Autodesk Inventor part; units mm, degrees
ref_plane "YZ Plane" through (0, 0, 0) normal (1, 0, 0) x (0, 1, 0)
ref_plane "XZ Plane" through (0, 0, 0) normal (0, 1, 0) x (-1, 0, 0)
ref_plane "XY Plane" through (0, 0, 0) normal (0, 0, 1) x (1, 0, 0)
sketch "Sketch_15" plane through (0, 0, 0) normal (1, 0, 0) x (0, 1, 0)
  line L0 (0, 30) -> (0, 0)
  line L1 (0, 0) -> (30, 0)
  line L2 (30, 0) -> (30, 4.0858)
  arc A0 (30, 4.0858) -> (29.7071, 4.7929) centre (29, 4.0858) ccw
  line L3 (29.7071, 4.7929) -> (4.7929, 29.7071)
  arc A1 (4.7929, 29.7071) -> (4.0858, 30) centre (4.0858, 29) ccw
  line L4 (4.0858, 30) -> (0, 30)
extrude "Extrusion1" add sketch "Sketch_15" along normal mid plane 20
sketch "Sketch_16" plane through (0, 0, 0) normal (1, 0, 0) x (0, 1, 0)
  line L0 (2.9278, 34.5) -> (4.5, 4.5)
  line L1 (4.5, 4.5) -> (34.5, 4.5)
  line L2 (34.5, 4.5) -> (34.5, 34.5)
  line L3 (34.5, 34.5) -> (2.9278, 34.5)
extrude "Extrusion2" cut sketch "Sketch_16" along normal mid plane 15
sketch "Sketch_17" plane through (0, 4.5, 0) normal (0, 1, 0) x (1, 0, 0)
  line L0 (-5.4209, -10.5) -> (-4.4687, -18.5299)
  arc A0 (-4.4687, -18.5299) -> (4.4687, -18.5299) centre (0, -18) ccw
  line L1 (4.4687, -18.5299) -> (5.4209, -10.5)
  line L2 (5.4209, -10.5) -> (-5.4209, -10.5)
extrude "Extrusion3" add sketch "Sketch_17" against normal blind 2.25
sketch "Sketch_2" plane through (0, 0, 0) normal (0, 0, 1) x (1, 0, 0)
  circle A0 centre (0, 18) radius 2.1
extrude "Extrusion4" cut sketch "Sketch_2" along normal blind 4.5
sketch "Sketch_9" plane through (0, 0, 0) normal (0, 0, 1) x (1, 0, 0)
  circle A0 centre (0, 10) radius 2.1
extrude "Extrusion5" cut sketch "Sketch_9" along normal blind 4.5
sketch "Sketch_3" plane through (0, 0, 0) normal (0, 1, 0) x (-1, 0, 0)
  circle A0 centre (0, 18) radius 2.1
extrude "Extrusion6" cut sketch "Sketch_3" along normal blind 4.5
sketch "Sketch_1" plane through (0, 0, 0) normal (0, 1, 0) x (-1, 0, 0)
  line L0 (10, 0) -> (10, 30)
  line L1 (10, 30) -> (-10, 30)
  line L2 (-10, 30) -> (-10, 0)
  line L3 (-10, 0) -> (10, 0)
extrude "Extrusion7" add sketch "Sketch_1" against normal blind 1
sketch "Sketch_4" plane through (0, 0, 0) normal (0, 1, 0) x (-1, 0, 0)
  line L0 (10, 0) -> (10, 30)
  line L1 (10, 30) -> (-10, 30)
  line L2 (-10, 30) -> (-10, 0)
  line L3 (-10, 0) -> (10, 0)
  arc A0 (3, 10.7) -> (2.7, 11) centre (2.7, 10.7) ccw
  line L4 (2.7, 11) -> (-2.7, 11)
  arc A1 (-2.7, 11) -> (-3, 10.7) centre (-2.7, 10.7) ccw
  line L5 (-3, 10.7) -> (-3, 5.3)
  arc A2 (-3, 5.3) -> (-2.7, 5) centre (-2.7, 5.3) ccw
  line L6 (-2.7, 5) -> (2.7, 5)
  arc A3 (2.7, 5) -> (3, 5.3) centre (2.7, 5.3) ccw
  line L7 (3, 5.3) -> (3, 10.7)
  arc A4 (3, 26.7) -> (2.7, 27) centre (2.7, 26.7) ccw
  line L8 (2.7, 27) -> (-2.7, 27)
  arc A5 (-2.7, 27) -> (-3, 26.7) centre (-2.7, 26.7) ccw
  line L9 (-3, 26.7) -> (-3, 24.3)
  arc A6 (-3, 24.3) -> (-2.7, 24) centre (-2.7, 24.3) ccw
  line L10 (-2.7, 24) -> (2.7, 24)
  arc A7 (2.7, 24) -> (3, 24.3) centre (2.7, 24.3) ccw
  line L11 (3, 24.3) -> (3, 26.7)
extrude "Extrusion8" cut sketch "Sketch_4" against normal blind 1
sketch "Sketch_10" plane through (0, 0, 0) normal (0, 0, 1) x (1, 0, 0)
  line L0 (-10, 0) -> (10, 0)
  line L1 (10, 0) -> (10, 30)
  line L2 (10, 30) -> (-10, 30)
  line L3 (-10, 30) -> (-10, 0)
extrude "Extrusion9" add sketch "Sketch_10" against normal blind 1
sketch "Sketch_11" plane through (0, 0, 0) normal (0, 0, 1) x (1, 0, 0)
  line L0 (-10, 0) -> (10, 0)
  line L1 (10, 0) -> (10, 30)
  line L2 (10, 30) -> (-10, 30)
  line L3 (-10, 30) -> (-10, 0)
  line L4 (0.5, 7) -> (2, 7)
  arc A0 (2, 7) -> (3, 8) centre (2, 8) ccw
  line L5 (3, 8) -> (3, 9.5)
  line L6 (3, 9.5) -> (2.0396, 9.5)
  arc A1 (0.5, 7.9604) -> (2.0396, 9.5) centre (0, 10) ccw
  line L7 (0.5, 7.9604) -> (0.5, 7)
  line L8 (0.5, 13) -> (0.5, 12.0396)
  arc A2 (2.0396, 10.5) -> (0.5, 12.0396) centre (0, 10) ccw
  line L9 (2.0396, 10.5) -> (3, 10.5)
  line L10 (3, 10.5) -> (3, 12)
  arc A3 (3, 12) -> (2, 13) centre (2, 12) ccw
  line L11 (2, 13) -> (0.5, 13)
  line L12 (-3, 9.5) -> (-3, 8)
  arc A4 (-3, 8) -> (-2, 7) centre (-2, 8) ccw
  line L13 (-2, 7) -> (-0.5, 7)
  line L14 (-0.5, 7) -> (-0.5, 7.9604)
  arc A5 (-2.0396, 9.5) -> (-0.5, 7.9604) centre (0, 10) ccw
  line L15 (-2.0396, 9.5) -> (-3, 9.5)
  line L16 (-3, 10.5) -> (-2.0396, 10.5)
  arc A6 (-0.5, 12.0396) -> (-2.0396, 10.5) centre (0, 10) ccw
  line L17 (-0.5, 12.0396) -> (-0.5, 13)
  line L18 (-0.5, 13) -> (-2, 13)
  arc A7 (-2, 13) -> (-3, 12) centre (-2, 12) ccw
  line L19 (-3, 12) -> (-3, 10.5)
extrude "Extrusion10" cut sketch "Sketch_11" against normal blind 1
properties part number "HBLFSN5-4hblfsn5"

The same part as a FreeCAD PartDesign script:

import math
import FreeCAD as App
import Part
import Sketcher

V = App.Vector
Q = App.Units.Quantity

doc = App.newDocument("Part")
body = doc.addObject("PartDesign::Body", "Body")

sketch1 = doc.addObject("Sketcher::SketchObject", "Sketch")
body.addObject(sketch1)
sketch1.AttachmentSupport = (doc.YZ_Plane, [""])
sketch1.MapMode = "FlatFace"
sketch1.addGeometry([
    Part.LineSegment(V(4.0858, 30, 0), V(0, 30, 0)),
    Part.LineSegment(V(0, 30, 0), V(0, 0, 0)),
    Part.LineSegment(V(0, 0, 0), V(30, 0, 0)),
    Part.LineSegment(V(30, 0, 0), V(30, 4.0858, 0)),
    Part.ArcOfCircle(Part.Circle(V(29, 4.0858, 0), V(0, 0, 1), 1), math.radians(0), math.radians(45)),
    Part.LineSegment(V(29.7071, 4.7929, 0), V(4.7929, 29.7071, 0)),
    Part.ArcOfCircle(Part.Circle(V(4.0858, 29, 0), V(0, 0, 1), 0.99999), math.radians(45), math.radians(90)),
], False)
sketch1.addConstraint([
    Sketcher.Constraint("Coincident", 0, 2, 1, 1),
    Sketcher.Constraint("Coincident", 1, 2, 2, 1),
    Sketcher.Constraint("Coincident", 2, 2, 3, 1),
    Sketcher.Constraint("Tangent", 3, 2, 4, 1),
    Sketcher.Constraint("Tangent", 4, 2, 5, 1),
    Sketcher.Constraint("Tangent", 5, 2, 6, 1),
    Sketcher.Constraint("Tangent", 6, 2, 0, 1),
    Sketcher.Constraint("Horizontal", 0),
    Sketcher.Constraint("Vertical", 1),
    Sketcher.Constraint("Horizontal", 2),
    Sketcher.Constraint("Vertical", 3),
    Sketcher.Constraint("Coincident", 1, 2, -1, 1),
    Sketcher.Constraint("Equal", 4, 6),
    Sketcher.Constraint("Equal", 2, 1),
    Sketcher.Constraint("Equal", 0, 3),
    Sketcher.Constraint("Radius", 4, Q("1 mm")),
    Sketcher.Constraint("DistanceX", 2, 1, 2, 2, Q("30 mm")),
    Sketcher.Constraint("Distance", 5, Q("35.234 mm")),
])
pad1 = doc.addObject("PartDesign::Pad", "Pad")
body.addObject(pad1)
pad1.Profile = sketch1
pad1.Length = 20
pad1.Midplane = True

sketch2 = doc.addObject("Sketcher::SketchObject", "Sketch001")
body.addObject(sketch2)
sketch2.AttachmentSupport = (doc.YZ_Plane, [""])
sketch2.MapMode = "FlatFace"
sketch2.addGeometry([
    Part.LineSegment(V(34.5, 34.5, 0), V(2.9278, 34.5, 0)),
    Part.LineSegment(V(2.9278, 34.5, 0), V(4.5, 4.5, 0)),
    Part.LineSegment(V(4.5, 4.5, 0), V(34.5, 4.5, 0)),
    Part.LineSegment(V(34.5, 4.5, 0), V(34.5, 34.5, 0)),
], False)
sketch2.addConstraint([
    Sketcher.Constraint("Coincident", 0, 2, 1, 1),
    Sketcher.Constraint("Coincident", 1, 2, 2, 1),
    Sketcher.Constraint("Coincident", 2, 2, 3, 1),
    Sketcher.Constraint("Coincident", 3, 2, 0, 1),
    Sketcher.Constraint("Horizontal", 0),
    Sketcher.Constraint("Horizontal", 2),
    Sketcher.Constraint("Vertical", 3),
    Sketcher.Constraint("Equal", 2, 3),
    Sketcher.Constraint("DistanceX", 2, 1, 2, 2, Q("30 mm")),
    Sketcher.Constraint("Angle", 1, Q("-87 deg")),
    Sketcher.Constraint("DistanceY", -1, 1, 0, 2, Q("34.5 mm")),
    Sketcher.Constraint("DistanceX", -1, 1, 1, 2, Q("4.5 mm")),
])
pocket1 = doc.addObject("PartDesign::Pocket", "Pocket")
body.addObject(pocket1)
pocket1.Profile = sketch2
pocket1.Length = 15
pocket1.Midplane = True

sketch3 = doc.addObject("Sketcher::SketchObject", "Sketch002")
body.addObject(sketch3)
sketch3.AttachmentSupport = (doc.XZ_Plane, [""])
sketch3.MapMode = "FlatFace"
sketch3.AttachmentOffset = App.Placement(V(0, 0, -4.5), App.Rotation())
sketch3.addGeometry([
    Part.LineSegment(V(5.4209, 10.5, 0), V(-5.4209, 10.5, 0)),
    Part.LineSegment(V(-5.4209, 10.5, 0), V(-4.4687, 18.5299, 0)),
    Part.ArcOfCircle(Part.Circle(V(0, 18, 0), V(0, 0, 1), 4.500008), math.radians(6.762575), math.radians(173.237425)),
    Part.LineSegment(V(4.4687, 18.5299, 0), V(5.4209, 10.5, 0)),
], False)
sketch3.addConstraint([
    Sketcher.Constraint("Coincident", 0, 2, 1, 1),
    Sketcher.Constraint("Tangent", 1, 2, 2, 2),
    Sketcher.Constraint("Tangent", 2, 1, 3, 1),
    Sketcher.Constraint("Coincident", 3, 2, 0, 1),
    Sketcher.Constraint("Horizontal", 0),
    Sketcher.Constraint("Symmetric", 1, 2, 2, 1, -2),
    Sketcher.Constraint("Radius", 2, Q("4.5 mm")),
    Sketcher.Constraint("DistanceY", -1, 1, 2, 3, Q("18 mm")),
    Sketcher.Constraint("DistanceY", -1, 1, 0, 2, Q("10.5 mm")),
    Sketcher.Constraint("DistanceY", -1, 1, 1, 2, Q("18.53 mm")),
])
pad2 = doc.addObject("PartDesign::Pad", "Pad001")
body.addObject(pad2)
pad2.Profile = sketch3
pad2.Length = 2.25

sketch4 = doc.addObject("Sketcher::SketchObject", "Sketch003")
body.addObject(sketch4)
sketch4.AttachmentSupport = (doc.XY_Plane, [""])
sketch4.MapMode = "FlatFace"
sketch4.addGeometry(Part.Circle(V(0, 18, 0), V(0, 0, 1), 2.1), False)
sketch4.addConstraint([
    Sketcher.Constraint("PointOnObject", 0, 3, -2),
    Sketcher.Constraint("Diameter", 0, Q("4.2 mm")),
    Sketcher.Constraint("DistanceY", -1, 1, 0, 3, Q("18 mm")),
])
pocket2 = doc.addObject("PartDesign::Pocket", "Pocket001")
body.addObject(pocket2)
pocket2.Profile = sketch4
pocket2.Length = 4.5
pocket2.Reversed = True

sketch5 = doc.addObject("Sketcher::SketchObject", "Sketch004")
body.addObject(sketch5)
sketch5.AttachmentSupport = (doc.XY_Plane, [""])
sketch5.MapMode = "FlatFace"
sketch5.addGeometry(Part.Circle(V(0, 10, 0), V(0, 0, 1), 2.1), False)
sketch5.addConstraint([
    Sketcher.Constraint("PointOnObject", 0, 3, -2),
    Sketcher.Constraint("Diameter", 0, Q("4.2 mm")),
    Sketcher.Constraint("DistanceY", -1, 1, 0, 3, Q("10 mm")),
])
pocket3 = doc.addObject("PartDesign::Pocket", "Pocket002")
body.addObject(pocket3)
pocket3.Profile = sketch5
pocket3.Length = 4.5
pocket3.Reversed = True

sketch6 = doc.addObject("Sketcher::SketchObject", "Sketch005")
body.addObject(sketch6)
sketch6.AttachmentSupport = (doc.XZ_Plane, [""])
sketch6.MapMode = "FlatFace"
sketch6.addGeometry(Part.Circle(V(0, 18, 0), V(0, 0, 1), 2.1), False)
sketch6.addConstraint([
    Sketcher.Constraint("PointOnObject", 0, 3, -2),
    Sketcher.Constraint("Diameter", 0, Q("4.2 mm")),
    Sketcher.Constraint("DistanceY", -1, 1, 0, 3, Q("18 mm")),
])
pocket4 = doc.addObject("PartDesign::Pocket", "Pocket003")
body.addObject(pocket4)
pocket4.Profile = sketch6
pocket4.Length = 4.5

sketch7 = doc.addObject("Sketcher::SketchObject", "Sketch006")
body.addObject(sketch7)
sketch7.AttachmentSupport = (doc.XZ_Plane, [""])
sketch7.MapMode = "FlatFace"
sketch7.addGeometry([
    Part.LineSegment(V(10, 0, 0), V(-10, 0, 0)),
    Part.LineSegment(V(-10, 0, 0), V(-10, 30, 0)),
    Part.LineSegment(V(-10, 30, 0), V(10, 30, 0)),
    Part.LineSegment(V(10, 30, 0), V(10, 0, 0)),
], False)
sketch7.addConstraint([
    Sketcher.Constraint("Coincident", 0, 2, 1, 1),
    Sketcher.Constraint("Coincident", 1, 2, 2, 1),
    Sketcher.Constraint("Coincident", 2, 2, 3, 1),
    Sketcher.Constraint("Coincident", 3, 2, 0, 1),
    Sketcher.Constraint("Horizontal", 0),
    Sketcher.Constraint("Vertical", 1),
    Sketcher.Constraint("Horizontal", 2),
    Sketcher.Constraint("Vertical", 3),
    Sketcher.Constraint("Symmetric", 0, 2, 3, 2, -1, 1),
    Sketcher.Constraint("DistanceX", 0, 2, 0, 1, Q("20 mm")),
    Sketcher.Constraint("DistanceY", 1, 1, 1, 2, Q("30 mm")),
])
pad3 = doc.addObject("PartDesign::Pad", "Pad002")
body.addObject(pad3)
pad3.Profile = sketch7
pad3.Length = 1

sketch8 = doc.addObject("Sketcher::SketchObject", "Sketch007")
body.addObject(sketch8)
sketch8.AttachmentSupport = (doc.XZ_Plane, [""])
sketch8.MapMode = "FlatFace"
sketch8.addGeometry([
    Part.LineSegment(V(10, 0, 0), V(-10, 0, 0)),
    Part.LineSegment(V(-10, 0, 0), V(-10, 30, 0)),
    Part.LineSegment(V(-10, 30, 0), V(10, 30, 0)),
    Part.LineSegment(V(10, 30, 0), V(10, 0, 0)),
    Part.ArcOfCircle(Part.Circle(V(-2.7, 10.7, 0), V(0, 0, 1), 0.3), math.radians(90), math.radians(180)),
    Part.LineSegment(V(-3, 10.7, 0), V(-3, 5.3, 0)),
    Part.ArcOfCircle(Part.Circle(V(-2.7, 5.3, 0), V(0, 0, 1), 0.3), math.radians(180), math.radians(270)),
    Part.LineSegment(V(-2.7, 5, 0), V(2.7, 5, 0)),
    Part.ArcOfCircle(Part.Circle(V(2.7, 5.3, 0), V(0, 0, 1), 0.3), math.radians(-90), math.radians(0)),
    Part.LineSegment(V(3, 5.3, 0), V(3, 10.7, 0)),
    Part.ArcOfCircle(Part.Circle(V(2.7, 10.7, 0), V(0, 0, 1), 0.3), math.radians(0), math.radians(90)),
    Part.LineSegment(V(2.7, 11, 0), V(-2.7, 11, 0)),
    Part.ArcOfCircle(Part.Circle(V(-2.7, 26.7, 0), V(0, 0, 1), 0.3), math.radians(90), math.radians(180)),
    Part.LineSegment(V(-3, 26.7, 0), V(-3, 24.3, 0)),
    Part.ArcOfCircle(Part.Circle(V(-2.7, 24.3, 0), V(0, 0, 1), 0.3), math.radians(180), math.radians(270)),
    Part.LineSegment(V(-2.7, 24, 0), V(2.7, 24, 0)),
    Part.ArcOfCircle(Part.Circle(V(2.7, 24.3, 0), V(0, 0, 1), 0.3), math.radians(-90), math.radians(0)),
    Part.LineSegment(V(3, 24.3, 0), V(3, 26.7, 0)),
    Part.ArcOfCircle(Part.Circle(V(2.7, 26.7, 0), V(0, 0, 1), 0.3), math.radians(0), math.radians(90)),
    Part.LineSegment(V(2.7, 27, 0), V(-2.7, 27, 0)),
], False)
sketch8.addConstraint([
    Sketcher.Constraint("Coincident", 0, 2, 1, 1),
    Sketcher.Constraint("Coincident", 1, 2, 2, 1),
    Sketcher.Constraint("Coincident", 2, 2, 3, 1),
    Sketcher.Constraint("Coincident", 3, 2, 0, 1),
    Sketcher.Constraint("Tangent", 4, 2, 5, 1),
    Sketcher.Constraint("Tangent", 5, 2, 6, 1),
    Sketcher.Constraint("Tangent", 6, 2, 7, 1),
    Sketcher.Constraint("Tangent", 7, 2, 8, 1),
    Sketcher.Constraint("Tangent", 8, 2, 9, 1),
    Sketcher.Constraint("Tangent", 9, 2, 10, 1),
    Sketcher.Constraint("Tangent", 10, 2, 11, 1),
    Sketcher.Constraint("Tangent", 11, 2, 4, 1),
    Sketcher.Constraint("Tangent", 12, 2, 13, 1),
    Sketcher.Constraint("Tangent", 13, 2, 14, 1),
    Sketcher.Constraint("Tangent", 14, 2, 15, 1),
    Sketcher.Constraint("Tangent", 15, 2, 16, 1),
    Sketcher.Constraint("Tangent", 16, 2, 17, 1),
    Sketcher.Constraint("Tangent", 17, 2, 18, 1),
    Sketcher.Constraint("Tangent", 18, 2, 19, 1),
    Sketcher.Constraint("Tangent", 19, 2, 12, 1),
    Sketcher.Constraint("Horizontal", 0),
    Sketcher.Constraint("Vertical", 1),
    Sketcher.Constraint("Horizontal", 2),
    Sketcher.Constraint("Vertical", 3),
    Sketcher.Constraint("Vertical", 5),
    Sketcher.Constraint("Horizontal", 7),
    Sketcher.Constraint("Vertical", 9),
    Sketcher.Constraint("Horizontal", 11),
    Sketcher.Constraint("Vertical", 13),
    Sketcher.Constraint("Horizontal", 15),
    Sketcher.Constraint("Vertical", 17),
    Sketcher.Constraint("Horizontal", 19),
    Sketcher.Constraint("Equal", 4, 6),
    Sketcher.Constraint("Equal", 6, 8),
    Sketcher.Constraint("Equal", 8, 10),
    Sketcher.Constraint("Equal", 10, 12),
    Sketcher.Constraint("Equal", 12, 14),
    Sketcher.Constraint("Equal", 14, 16),
    Sketcher.Constraint("Equal", 16, 18),
    Sketcher.Constraint("Symmetric", 0, 2, 3, 2, -1, 1),
    Sketcher.Constraint("Vertical", 6, 3, 12, 3),
    Sketcher.Constraint("Vertical", 10, 3, 16, 3),
    Sketcher.Constraint("Equal", 19, 5),
    Sketcher.Constraint("Radius", 4, Q("0.3 mm")),
    Sketcher.Constraint("DistanceX", 0, 2, 0, 1, Q("20 mm")),
    Sketcher.Constraint("DistanceY", 1, 1, 1, 2, Q("30 mm")),
    Sketcher.Constraint("DistanceX", 7, 1, 7, 2, Q("5.4 mm")),
    Sketcher.Constraint("DistanceY", 13, 2, 13, 1, Q("2.4 mm")),
    Sketcher.Constraint("DistanceX", 4, 2, -1, 1, Q("3 mm")),
    Sketcher.Constraint("DistanceY", -1, 1, 6, 2, Q("5 mm")),
    Sketcher.Constraint("DistanceY", -1, 1, 14, 2, Q("24 mm")),
])
pocket5 = doc.addObject("PartDesign::Pocket", "Pocket004")
body.addObject(pocket5)
pocket5.Profile = sketch8
pocket5.Length = 1
pocket5.Reversed = True

sketch9 = doc.addObject("Sketcher::SketchObject", "Sketch008")
body.addObject(sketch9)
sketch9.AttachmentSupport = (doc.XY_Plane, [""])
sketch9.MapMode = "FlatFace"
sketch9.addGeometry([
    Part.LineSegment(V(-10, 30, 0), V(-10, 0, 0)),
    Part.LineSegment(V(-10, 0, 0), V(10, 0, 0)),
    Part.LineSegment(V(10, 0, 0), V(10, 30, 0)),
    Part.LineSegment(V(10, 30, 0), V(-10, 30, 0)),
], False)
sketch9.addConstraint([
    Sketcher.Constraint("Coincident", 0, 2, 1, 1),
    Sketcher.Constraint("Coincident", 1, 2, 2, 1),
    Sketcher.Constraint("Coincident", 2, 2, 3, 1),
    Sketcher.Constraint("Coincident", 3, 2, 0, 1),
    Sketcher.Constraint("Vertical", 0),
    Sketcher.Constraint("Horizontal", 1),
    Sketcher.Constraint("Vertical", 2),
    Sketcher.Constraint("Horizontal", 3),
    Sketcher.Constraint("Symmetric", 0, 2, 1, 2, -1, 1),
    Sketcher.Constraint("DistanceX", 1, 1, 1, 2, Q("20 mm")),
    Sketcher.Constraint("DistanceY", 0, 2, 0, 1, Q("30 mm")),
])
pad4 = doc.addObject("PartDesign::Pad", "Pad003")
body.addObject(pad4)
pad4.Profile = sketch9
pad4.Length = 1
pad4.Reversed = True

sketch10 = doc.addObject("Sketcher::SketchObject", "Sketch009")
body.addObject(sketch10)
sketch10.AttachmentSupport = (doc.XY_Plane, [""])
sketch10.MapMode = "FlatFace"
sketch10.addGeometry([
    Part.LineSegment(V(-10, 30, 0), V(-10, 0, 0)),
    Part.LineSegment(V(-10, 0, 0), V(10, 0, 0)),
    Part.LineSegment(V(10, 0, 0), V(10, 30, 0)),
    Part.LineSegment(V(10, 30, 0), V(-10, 30, 0)),
    Part.LineSegment(V(-3, 8, 0), V(-3, 9.5, 0)),
    Part.LineSegment(V(-3, 9.5, 0), V(-2.0396, 9.5, 0)),
    Part.ArcOfCircle(Part.Circle(V(0, 10, 0), V(0, 0, 1), 2.099992), math.radians(-166.225802), math.radians(-103.774198)),
    Part.LineSegment(V(-0.5, 7.9604, 0), V(-0.5, 7, 0)),
    Part.LineSegment(V(-0.5, 7, 0), V(-2, 7, 0)),
    Part.ArcOfCircle(Part.Circle(V(-2, 8, 0), V(0, 0, 1), 1), math.radians(180), math.radians(270)),
    Part.LineSegment(V(-2.0396, 10.5, 0), V(-3, 10.5, 0)),
    Part.LineSegment(V(-3, 10.5, 0), V(-3, 12, 0)),
    Part.ArcOfCircle(Part.Circle(V(-2, 12, 0), V(0, 0, 1), 1), math.radians(90), math.radians(180)),
    Part.LineSegment(V(-2, 13, 0), V(-0.5, 13, 0)),
    Part.LineSegment(V(-0.5, 13, 0), V(-0.5, 12.0396, 0)),
    Part.ArcOfCircle(Part.Circle(V(0, 10, 0), V(0, 0, 1), 2.099992), math.radians(103.774198), math.radians(166.225802)),
    Part.LineSegment(V(2, 7, 0), V(0.5, 7, 0)),
    Part.LineSegment(V(0.5, 7, 0), V(0.5, 7.9604, 0)),
    Part.ArcOfCircle(Part.Circle(V(0, 10, 0), V(0, 0, 1), 2.099992), math.radians(-76.225802), math.radians(-13.774198)),
    Part.LineSegment(V(2.0396, 9.5, 0), V(3, 9.5, 0)),
    Part.LineSegment(V(3, 9.5, 0), V(3, 8, 0)),
    Part.ArcOfCircle(Part.Circle(V(2, 8, 0), V(0, 0, 1), 1), math.radians(-90), math.radians(0)),
    Part.LineSegment(V(0.5, 12.0396, 0), V(0.5, 13, 0)),
    Part.LineSegment(V(0.5, 13, 0), V(2, 13, 0)),
    Part.ArcOfCircle(Part.Circle(V(2, 12, 0), V(0, 0, 1), 1), math.radians(0), math.radians(90)),
    Part.LineSegment(V(3, 12, 0), V(3, 10.5, 0)),
    Part.LineSegment(V(3, 10.5, 0), V(2.0396, 10.5, 0)),
    Part.ArcOfCircle(Part.Circle(V(0, 10, 0), V(0, 0, 1), 2.099992), math.radians(13.774198), math.radians(76.225802)),
], False)
sketch10.addConstraint([
    Sketcher.Constraint("Coincident", 0, 2, 1, 1),
    Sketcher.Constraint("Coincident", 1, 2, 2, 1),
    Sketcher.Constraint("Coincident", 2, 2, 3, 1),
    Sketcher.Constraint("Coincident", 3, 2, 0, 1),
    Sketcher.Constraint("Coincident", 4, 2, 5, 1),
    Sketcher.Constraint("Coincident", 5, 2, 6, 1),
    Sketcher.Constraint("Coincident", 6, 2, 7, 1),
    Sketcher.Constraint("Coincident", 7, 2, 8, 1),
    Sketcher.Constraint("Tangent", 8, 2, 9, 2),
    Sketcher.Constraint("Tangent", 9, 1, 4, 1),
    Sketcher.Constraint("Coincident", 10, 2, 11, 1),
    Sketcher.Constraint("Tangent", 11, 2, 12, 2),
    Sketcher.Constraint("Tangent", 12, 1, 13, 1),
    Sketcher.Constraint("Coincident", 13, 2, 14, 1),
    Sketcher.Constraint("Coincident", 14, 2, 15, 1),
    Sketcher.Constraint("Coincident", 15, 2, 10, 1),
    Sketcher.Constraint("Coincident", 16, 2, 17, 1),
    Sketcher.Constraint("Coincident", 17, 2, 18, 1),
    Sketcher.Constraint("Coincident", 18, 2, 19, 1),
    Sketcher.Constraint("Coincident", 19, 2, 20, 1),
    Sketcher.Constraint("Tangent", 20, 2, 21, 2),
    Sketcher.Constraint("Tangent", 21, 1, 16, 1),
    Sketcher.Constraint("Coincident", 22, 2, 23, 1),
    Sketcher.Constraint("Tangent", 23, 2, 24, 2),
    Sketcher.Constraint("Tangent", 24, 1, 25, 1),
    Sketcher.Constraint("Coincident", 25, 2, 26, 1),
    Sketcher.Constraint("Coincident", 26, 2, 27, 1),
    Sketcher.Constraint("Coincident", 27, 2, 22, 1),
    Sketcher.Constraint("Vertical", 0),
    Sketcher.Constraint("Horizontal", 1),
    Sketcher.Constraint("Vertical", 2),
    Sketcher.Constraint("Horizontal", 3),
    Sketcher.Constraint("Vertical", 4),
    Sketcher.Constraint("Horizontal", 5),
    Sketcher.Constraint("Vertical", 7),
    Sketcher.Constraint("Horizontal", 8),
    Sketcher.Constraint("Horizontal", 10),
    Sketcher.Constraint("Vertical", 11),
    Sketcher.Constraint("Horizontal", 13),
    Sketcher.Constraint("Vertical", 14),
    Sketcher.Constraint("Horizontal", 16),
    Sketcher.Constraint("Vertical", 17),
    Sketcher.Constraint("Horizontal", 19),
    Sketcher.Constraint("Vertical", 20),
    Sketcher.Constraint("Vertical", 22),
    Sketcher.Constraint("Horizontal", 23),
    Sketcher.Constraint("Vertical", 25),
    Sketcher.Constraint("Horizontal", 26),
    Sketcher.Constraint("Coincident", 15, 3, 6, 3),
    Sketcher.Constraint("Coincident", 18, 3, 6, 3),
    Sketcher.Constraint("Coincident", 27, 3, 6, 3),
    Sketcher.Constraint("Equal", 9, 12),
    Sketcher.Constraint("Equal", 6, 15),
    Sketcher.Constraint("Equal", 15, 18),
    Sketcher.Constraint("Equal", 12, 21),
    Sketcher.Constraint("Equal", 21, 24),
    Sketcher.Constraint("Equal", 18, 27),
    Sketcher.Constraint("Symmetric", 0, 2, 1, 2, -1, 1),
    Sketcher.Constraint("Symmetric", 9, 3, 21, 3, -2),
    Sketcher.Constraint("Symmetric", 12, 3, 24, 3, -2),
    Sketcher.Constraint("Symmetric", 6, 2, 17, 2, -2),
    Sketcher.Constraint("Horizontal", 5, 2, 18, 2),
    Sketcher.Constraint("Horizontal", 15, 2, 25, 2),
    Sketcher.Constraint("Horizontal", 14, 2, 27, 2),
    Sketcher.Constraint("Vertical", 9, 3, 12, 3),
    Sketcher.Constraint("Vertical", 7, 2, 13, 2),
    Sketcher.Constraint("Vertical", 5, 2, 15, 2),
    Sketcher.Constraint("Equal", 23, 4),
    Sketcher.Constraint("Equal", 26, 7),
    Sketcher.Constraint("Equal", 4, 11),
    Sketcher.Constraint("Radius", 9, Q("1 mm")),
    Sketcher.Constraint("Radius", 6, Q("2.1 mm")),
    Sketcher.Constraint("DistanceX", 1, 1, 1, 2, Q("20 mm")),
    Sketcher.Constraint("DistanceY", 0, 2, 0, 1, Q("30 mm")),
    Sketcher.Constraint("DistanceX", 8, 2, 8, 1, Q("1.5 mm")),
    Sketcher.Constraint("DistanceY", -1, 1, 6, 3, Q("10 mm")),
    Sketcher.Constraint("DistanceX", 9, 3, -1, 1, Q("2 mm")),
])
pocket6 = doc.addObject("PartDesign::Pocket", "Pocket005")
body.addObject(pocket6)
pocket6.Profile = sketch10
pocket6.Length = 1

doc.recompute()
